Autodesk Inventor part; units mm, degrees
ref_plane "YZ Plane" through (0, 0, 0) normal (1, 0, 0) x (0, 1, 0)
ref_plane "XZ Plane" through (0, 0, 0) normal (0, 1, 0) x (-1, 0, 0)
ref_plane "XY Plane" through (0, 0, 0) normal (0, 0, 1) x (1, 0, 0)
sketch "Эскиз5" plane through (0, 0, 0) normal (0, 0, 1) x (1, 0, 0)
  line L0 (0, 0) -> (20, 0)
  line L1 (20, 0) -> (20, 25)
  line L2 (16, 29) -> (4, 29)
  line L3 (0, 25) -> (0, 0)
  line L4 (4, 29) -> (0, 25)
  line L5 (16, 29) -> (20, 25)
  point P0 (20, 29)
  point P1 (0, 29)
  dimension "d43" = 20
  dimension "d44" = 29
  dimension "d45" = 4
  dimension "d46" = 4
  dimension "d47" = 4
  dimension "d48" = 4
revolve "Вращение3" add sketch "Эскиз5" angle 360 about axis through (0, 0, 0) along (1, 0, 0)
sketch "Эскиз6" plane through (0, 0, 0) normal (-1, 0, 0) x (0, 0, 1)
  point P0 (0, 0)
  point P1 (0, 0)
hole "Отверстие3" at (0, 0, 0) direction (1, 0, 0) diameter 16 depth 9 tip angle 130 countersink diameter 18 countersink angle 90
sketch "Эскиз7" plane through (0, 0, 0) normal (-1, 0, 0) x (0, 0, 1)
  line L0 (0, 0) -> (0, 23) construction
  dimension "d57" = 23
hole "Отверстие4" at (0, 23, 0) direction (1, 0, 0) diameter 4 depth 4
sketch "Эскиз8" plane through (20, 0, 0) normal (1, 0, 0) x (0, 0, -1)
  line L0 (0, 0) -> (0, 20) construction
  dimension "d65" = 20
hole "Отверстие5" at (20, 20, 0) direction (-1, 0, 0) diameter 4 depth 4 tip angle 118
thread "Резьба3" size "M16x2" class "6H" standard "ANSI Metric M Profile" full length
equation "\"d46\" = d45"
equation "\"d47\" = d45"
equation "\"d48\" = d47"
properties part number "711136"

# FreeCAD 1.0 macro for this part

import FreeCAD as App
import Part
import Sketcher

V = App.Vector


def add_polygon(sketch, points):
    """Adds a closed chain of lines whose ends are joined by coincident constraints."""
    first, n = sketch.GeometryCount, len(points)
    for a, b in zip(points, points[1:] + points[:1]):
        sketch.addGeometry(Part.LineSegment(App.Vector(*a, 0), App.Vector(*b, 0)), False)
    for i in range(n):
        sketch.addConstraint(Sketcher.Constraint("Coincident", first + i, 2, first + (i + 1) % n, 1))

doc = App.newDocument("Part")
body = doc.addObject("PartDesign::Body", "Body")

# Sketch on XY plane
sketch1 = body.newObject("Sketcher::SketchObject", "Sketch")
sketch1.AttachmentSupport = (doc.getObject("XY_Plane"), [""])
sketch1.MapMode = "FlatFace"
add_polygon(sketch1, [(0, 25), (0, 0), (20, 0), (20, 25), (16, 29), (4, 29)])  # lines 0-5
sketch1.addConstraint([
    Sketcher.Constraint("Vertical", 0),
    Sketcher.Constraint("Horizontal", 1),
    Sketcher.Constraint("Vertical", 2),
    Sketcher.Constraint("Horizontal", 4),
    Sketcher.Constraint("Coincident", 0, 2, -1, 1),
    Sketcher.Constraint("Perpendicular", 3, 5),
    Sketcher.Constraint("Horizontal", 2, 2, 5, 2),
    Sketcher.Constraint("Equal", 3, 5),
    Sketcher.Constraint("DistanceX", 1, 1, 1, 2, 20.0),
    Sketcher.Constraint("DistanceY", -1, 1, 3, 2, 29.0),
    Sketcher.Constraint("DistanceX", -1, 1, 4, 2, 4.0),
])
revolution = body.newObject("PartDesign::Revolution", "Revolution")
revolution.Profile = sketch1
revolution.ReferenceAxis = (sketch1, ["H_Axis"])
revolution.Angle = 360

# Sketch on YZ plane
sketch2 = body.newObject("Sketcher::SketchObject", "Sketch001")
sketch2.AttachmentSupport = (doc.getObject("YZ_Plane"), [""])
sketch2.MapMode = "FlatFace"
sketch2.addGeometry(Part.Circle(V(0, 0, 0), V(0, 0, 1), 8), False)
sketch2.addConstraint([
    Sketcher.Constraint("Coincident", 0, 3, -1, 1),
    Sketcher.Constraint("Diameter", 0, 16.0),
])
doc.recompute()
hole = body.newObject("PartDesign::Hole", "Hole")
hole.Profile = sketch2
hole.ThreadType = "None"
hole.Diameter = 16
hole.DepthType = "Dimension"
hole.Depth = 9
hole.DrillPoint = "Angled"
hole.DrillPointAngle = 130
hole.HoleCutType = "Countersink"
hole.HoleCutDiameter = 18
hole.HoleCutCountersinkAngle = 90
hole.Reversed = True

# Sketch on YZ plane
sketch3 = body.newObject("Sketcher::SketchObject", "Sketch002")
sketch3.AttachmentSupport = (doc.getObject("YZ_Plane"), [""])
sketch3.MapMode = "FlatFace"
sketch3.addGeometry(Part.Circle(V(23, 0, 0), V(0, 0, 1), 2), False)
sketch3.addConstraint([
    Sketcher.Constraint("PointOnObject", 0, 3, -1),
    Sketcher.Constraint("Diameter", 0, 4.0),
    Sketcher.Constraint("DistanceX", -1, 1, 0, 3, 23.0),
])
doc.recompute()
hole2 = body.newObject("PartDesign::Hole", "Hole001")
hole2.Profile = sketch3
hole2.ThreadType = "None"
hole2.Diameter = 4
hole2.DepthType = "Dimension"
hole2.Depth = 4
hole2.DrillPoint = "Flat"
hole2.Reversed = True

# Sketch on YZ plane
sketch4 = body.newObject("Sketcher::SketchObject", "Sketch003")
sketch4.AttachmentSupport = (doc.getObject("YZ_Plane"), [""])
sketch4.MapMode = "FlatFace"
sketch4.AttachmentOffset = App.Placement(V(0, 0, 20), App.Rotation())
sketch4.addGeometry(Part.Circle(V(20, 0, 0), V(0, 0, 1), 2), False)
sketch4.addConstraint([
    Sketcher.Constraint("PointOnObject", 0, 3, -1),
    Sketcher.Constraint("Diameter", 0, 4.0),
    Sketcher.Constraint("DistanceX", -1, 1, 0, 3, 20.0),
])
doc.recompute()
hole3 = body.newObject("PartDesign::Hole", "Hole002")
hole3.Profile = sketch4
hole3.ThreadType = "None"
hole3.Diameter = 4
hole3.DepthType = "Dimension"
hole3.Depth = 4
hole3.DrillPoint = "Angled"
hole3.DrillPointAngle = 118

doc.recompute()
